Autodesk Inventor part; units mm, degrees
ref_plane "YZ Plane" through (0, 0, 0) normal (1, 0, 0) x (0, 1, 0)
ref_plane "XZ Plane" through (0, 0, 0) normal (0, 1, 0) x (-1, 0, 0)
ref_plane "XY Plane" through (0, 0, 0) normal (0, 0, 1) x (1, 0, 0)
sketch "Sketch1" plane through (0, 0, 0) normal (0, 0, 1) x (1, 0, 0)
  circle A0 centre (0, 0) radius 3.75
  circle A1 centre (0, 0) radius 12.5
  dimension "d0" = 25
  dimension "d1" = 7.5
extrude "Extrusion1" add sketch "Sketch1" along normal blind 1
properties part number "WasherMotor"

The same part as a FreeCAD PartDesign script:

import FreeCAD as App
import Part
import Sketcher
Q = App.Units.Quantity

doc = App.newDocument("Part")
params = doc.addObject("Spreadsheet::Sheet", "Params")
for row, (alias, value) in enumerate([
    ("sketch1_diameter", "25 mm"),
    ("sketch1_diameter2", "7.5 mm"),
    ("pad1_length", "1 mm"),
], start=1):
    params.set(f"A{row}", alias)
    params.set(f"B{row}", "=" + value)
    params.setAlias(f"B{row}", alias)

body = doc.addObject("PartDesign::Body", "Body")

# Sketch on XY plane
sketch1 = body.newObject("Sketcher::SketchObject", "Sketch")
sketch1.AttachmentSupport = (doc.getObject("XY_Plane"), [""])
sketch1.MapMode = "FlatFace"
sketch1.addGeometry(Part.Circle(App.Vector(0, 0, 0), App.Vector(0, 0, 1), 12.5), False)
sketch1.addGeometry(Part.Circle(App.Vector(0, 0, 0), App.Vector(0, 0, 1), 3.8), False)
sketch1.addConstraint(Sketcher.Constraint("Coincident", 0, 3, -1, 1))
sketch1.addConstraint(Sketcher.Constraint("Coincident", 1, 3, -1, 1))
sketch1.addConstraint(Sketcher.Constraint("Diameter", 0, Q("25 mm")))
sketch1.addConstraint(Sketcher.Constraint("Diameter", 1, Q("7.5 mm")))
sketch1.setExpression("Constraints[2]", "Params.sketch1_diameter")
sketch1.setExpression("Constraints[3]", "Params.sketch1_diameter2")
pad1 = body.newObject("PartDesign::Pad", "Pad")
pad1.Profile = sketch1
pad1.setExpression("Length", "Params.pad1_length")

doc.recompute()
